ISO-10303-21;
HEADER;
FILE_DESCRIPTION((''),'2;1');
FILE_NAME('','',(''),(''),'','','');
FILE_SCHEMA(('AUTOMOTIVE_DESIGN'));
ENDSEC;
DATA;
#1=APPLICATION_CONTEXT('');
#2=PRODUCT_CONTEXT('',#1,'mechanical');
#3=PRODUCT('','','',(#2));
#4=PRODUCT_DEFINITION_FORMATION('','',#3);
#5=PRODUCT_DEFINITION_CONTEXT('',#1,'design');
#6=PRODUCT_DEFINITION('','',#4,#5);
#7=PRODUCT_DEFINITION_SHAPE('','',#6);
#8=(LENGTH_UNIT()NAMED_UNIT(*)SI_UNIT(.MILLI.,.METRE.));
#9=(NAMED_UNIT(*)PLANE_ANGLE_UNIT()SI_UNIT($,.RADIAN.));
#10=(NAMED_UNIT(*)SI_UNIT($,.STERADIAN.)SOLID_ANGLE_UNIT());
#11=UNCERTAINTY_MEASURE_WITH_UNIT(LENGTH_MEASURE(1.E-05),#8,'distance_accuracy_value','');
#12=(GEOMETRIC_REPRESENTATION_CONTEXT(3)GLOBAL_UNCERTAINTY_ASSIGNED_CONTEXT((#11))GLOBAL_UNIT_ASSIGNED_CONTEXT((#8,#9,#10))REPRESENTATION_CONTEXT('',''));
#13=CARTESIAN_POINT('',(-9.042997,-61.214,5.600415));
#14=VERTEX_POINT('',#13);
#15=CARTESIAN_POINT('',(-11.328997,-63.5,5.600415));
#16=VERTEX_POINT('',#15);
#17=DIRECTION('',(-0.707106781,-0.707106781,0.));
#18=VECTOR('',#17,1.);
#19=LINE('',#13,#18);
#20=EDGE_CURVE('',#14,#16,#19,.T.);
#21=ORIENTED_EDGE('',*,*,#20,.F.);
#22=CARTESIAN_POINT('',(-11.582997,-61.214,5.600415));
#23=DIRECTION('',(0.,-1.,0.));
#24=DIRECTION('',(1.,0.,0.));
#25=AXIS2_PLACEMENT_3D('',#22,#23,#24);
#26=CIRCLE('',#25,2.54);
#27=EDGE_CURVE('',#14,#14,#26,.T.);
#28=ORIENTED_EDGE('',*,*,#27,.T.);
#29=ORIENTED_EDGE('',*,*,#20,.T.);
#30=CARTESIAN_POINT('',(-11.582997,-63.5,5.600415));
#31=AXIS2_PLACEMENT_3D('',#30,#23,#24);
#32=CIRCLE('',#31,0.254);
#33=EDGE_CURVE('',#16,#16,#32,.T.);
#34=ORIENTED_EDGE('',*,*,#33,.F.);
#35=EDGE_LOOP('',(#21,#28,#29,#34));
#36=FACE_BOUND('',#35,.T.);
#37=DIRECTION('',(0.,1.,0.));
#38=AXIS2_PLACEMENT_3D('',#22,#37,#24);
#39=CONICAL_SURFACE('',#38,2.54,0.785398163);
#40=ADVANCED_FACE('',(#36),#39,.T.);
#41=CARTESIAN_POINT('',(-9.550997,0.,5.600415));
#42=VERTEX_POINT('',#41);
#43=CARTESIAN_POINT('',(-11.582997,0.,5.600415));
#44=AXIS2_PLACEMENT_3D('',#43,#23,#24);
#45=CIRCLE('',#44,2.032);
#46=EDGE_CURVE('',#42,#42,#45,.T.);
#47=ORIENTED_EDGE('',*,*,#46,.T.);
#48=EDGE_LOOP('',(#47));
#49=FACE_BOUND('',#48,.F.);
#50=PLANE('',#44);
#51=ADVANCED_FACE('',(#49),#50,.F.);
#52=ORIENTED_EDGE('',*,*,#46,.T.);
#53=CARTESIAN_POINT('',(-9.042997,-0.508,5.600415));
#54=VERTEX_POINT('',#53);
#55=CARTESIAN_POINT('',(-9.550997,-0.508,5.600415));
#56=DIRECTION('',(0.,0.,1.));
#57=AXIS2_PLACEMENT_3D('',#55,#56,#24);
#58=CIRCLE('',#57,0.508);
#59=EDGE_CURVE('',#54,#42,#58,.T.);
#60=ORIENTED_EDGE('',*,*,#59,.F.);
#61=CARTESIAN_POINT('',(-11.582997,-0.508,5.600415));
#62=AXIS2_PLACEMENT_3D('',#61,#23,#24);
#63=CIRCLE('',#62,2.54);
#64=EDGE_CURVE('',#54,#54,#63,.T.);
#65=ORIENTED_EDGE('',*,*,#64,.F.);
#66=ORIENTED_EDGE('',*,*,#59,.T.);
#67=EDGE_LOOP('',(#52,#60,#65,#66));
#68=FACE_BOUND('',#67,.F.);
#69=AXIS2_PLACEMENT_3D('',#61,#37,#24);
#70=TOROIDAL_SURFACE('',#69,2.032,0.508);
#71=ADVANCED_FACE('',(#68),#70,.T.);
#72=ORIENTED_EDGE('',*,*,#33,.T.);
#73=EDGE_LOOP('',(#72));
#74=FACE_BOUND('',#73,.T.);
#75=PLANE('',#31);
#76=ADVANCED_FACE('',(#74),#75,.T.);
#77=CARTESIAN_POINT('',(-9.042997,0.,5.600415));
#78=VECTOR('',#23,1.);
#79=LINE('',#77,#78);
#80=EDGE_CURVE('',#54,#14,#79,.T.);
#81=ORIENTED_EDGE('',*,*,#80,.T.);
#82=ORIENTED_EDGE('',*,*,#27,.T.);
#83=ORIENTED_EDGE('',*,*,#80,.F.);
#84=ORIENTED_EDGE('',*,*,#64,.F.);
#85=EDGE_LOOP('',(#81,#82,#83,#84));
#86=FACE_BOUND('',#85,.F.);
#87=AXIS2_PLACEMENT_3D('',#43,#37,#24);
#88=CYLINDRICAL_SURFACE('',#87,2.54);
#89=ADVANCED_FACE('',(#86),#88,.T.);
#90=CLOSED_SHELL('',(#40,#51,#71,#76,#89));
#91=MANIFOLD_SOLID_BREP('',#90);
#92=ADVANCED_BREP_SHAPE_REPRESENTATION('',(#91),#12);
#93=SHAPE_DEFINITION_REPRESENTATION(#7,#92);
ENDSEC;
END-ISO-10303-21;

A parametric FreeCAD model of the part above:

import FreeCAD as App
import Part
import Sketcher

V = App.Vector
Q = App.Units.Quantity


def edges_at(feature, points):
    """Names of the edges that pass closest to the given points."""
    edges = feature.Shape.Edges
    near = lambda p: min(range(len(edges)), key=lambda i: edges[i].distToShape(Part.Vertex(*p))[0])
    return sorted({f"Edge{near(p) + 1}" for p in points})

doc = App.newDocument("Part")
body = doc.addObject("PartDesign::Body", "Body")

# Sketch on XZ plane
sketch1 = body.newObject("Sketcher::SketchObject", "Sketch")
sketch1.AttachmentSupport = (doc.getObject("XZ_Plane"), [""])
sketch1.MapMode = "FlatFace"
sketch1.addGeometry(Part.Circle(V(-11.6, 5.6, 0), V(0, 0, 1), 2.5), False)
sketch1.addConstraint([
    Sketcher.Constraint("Diameter", 0, Q("0.2 in")),
    Sketcher.Constraint("DistanceX", 0, 3, -1, 1, 11.582997),
    Sketcher.Constraint("DistanceY", -1, 1, 0, 3, 5.600415),
])
pad1 = body.newObject("PartDesign::Pad", "Pad")
pad1.Profile = sketch1
pad1.Length = Q("2.5 in")
doc.recompute()

fillet = body.newObject("PartDesign::Fillet", "Fillet")
fillet.Base = (pad1, edges_at(pad1, [(-14.123, 0, 5.6)]))
fillet.Radius = Q("0.02 in")
doc.recompute()

chamfer = body.newObject("PartDesign::Chamfer", "Chamfer")
chamfer.Base = (fillet, edges_at(fillet, [(-14.123, -63.5, 5.6)]))
chamfer.Size = Q("0.09 in")

doc.recompute()
